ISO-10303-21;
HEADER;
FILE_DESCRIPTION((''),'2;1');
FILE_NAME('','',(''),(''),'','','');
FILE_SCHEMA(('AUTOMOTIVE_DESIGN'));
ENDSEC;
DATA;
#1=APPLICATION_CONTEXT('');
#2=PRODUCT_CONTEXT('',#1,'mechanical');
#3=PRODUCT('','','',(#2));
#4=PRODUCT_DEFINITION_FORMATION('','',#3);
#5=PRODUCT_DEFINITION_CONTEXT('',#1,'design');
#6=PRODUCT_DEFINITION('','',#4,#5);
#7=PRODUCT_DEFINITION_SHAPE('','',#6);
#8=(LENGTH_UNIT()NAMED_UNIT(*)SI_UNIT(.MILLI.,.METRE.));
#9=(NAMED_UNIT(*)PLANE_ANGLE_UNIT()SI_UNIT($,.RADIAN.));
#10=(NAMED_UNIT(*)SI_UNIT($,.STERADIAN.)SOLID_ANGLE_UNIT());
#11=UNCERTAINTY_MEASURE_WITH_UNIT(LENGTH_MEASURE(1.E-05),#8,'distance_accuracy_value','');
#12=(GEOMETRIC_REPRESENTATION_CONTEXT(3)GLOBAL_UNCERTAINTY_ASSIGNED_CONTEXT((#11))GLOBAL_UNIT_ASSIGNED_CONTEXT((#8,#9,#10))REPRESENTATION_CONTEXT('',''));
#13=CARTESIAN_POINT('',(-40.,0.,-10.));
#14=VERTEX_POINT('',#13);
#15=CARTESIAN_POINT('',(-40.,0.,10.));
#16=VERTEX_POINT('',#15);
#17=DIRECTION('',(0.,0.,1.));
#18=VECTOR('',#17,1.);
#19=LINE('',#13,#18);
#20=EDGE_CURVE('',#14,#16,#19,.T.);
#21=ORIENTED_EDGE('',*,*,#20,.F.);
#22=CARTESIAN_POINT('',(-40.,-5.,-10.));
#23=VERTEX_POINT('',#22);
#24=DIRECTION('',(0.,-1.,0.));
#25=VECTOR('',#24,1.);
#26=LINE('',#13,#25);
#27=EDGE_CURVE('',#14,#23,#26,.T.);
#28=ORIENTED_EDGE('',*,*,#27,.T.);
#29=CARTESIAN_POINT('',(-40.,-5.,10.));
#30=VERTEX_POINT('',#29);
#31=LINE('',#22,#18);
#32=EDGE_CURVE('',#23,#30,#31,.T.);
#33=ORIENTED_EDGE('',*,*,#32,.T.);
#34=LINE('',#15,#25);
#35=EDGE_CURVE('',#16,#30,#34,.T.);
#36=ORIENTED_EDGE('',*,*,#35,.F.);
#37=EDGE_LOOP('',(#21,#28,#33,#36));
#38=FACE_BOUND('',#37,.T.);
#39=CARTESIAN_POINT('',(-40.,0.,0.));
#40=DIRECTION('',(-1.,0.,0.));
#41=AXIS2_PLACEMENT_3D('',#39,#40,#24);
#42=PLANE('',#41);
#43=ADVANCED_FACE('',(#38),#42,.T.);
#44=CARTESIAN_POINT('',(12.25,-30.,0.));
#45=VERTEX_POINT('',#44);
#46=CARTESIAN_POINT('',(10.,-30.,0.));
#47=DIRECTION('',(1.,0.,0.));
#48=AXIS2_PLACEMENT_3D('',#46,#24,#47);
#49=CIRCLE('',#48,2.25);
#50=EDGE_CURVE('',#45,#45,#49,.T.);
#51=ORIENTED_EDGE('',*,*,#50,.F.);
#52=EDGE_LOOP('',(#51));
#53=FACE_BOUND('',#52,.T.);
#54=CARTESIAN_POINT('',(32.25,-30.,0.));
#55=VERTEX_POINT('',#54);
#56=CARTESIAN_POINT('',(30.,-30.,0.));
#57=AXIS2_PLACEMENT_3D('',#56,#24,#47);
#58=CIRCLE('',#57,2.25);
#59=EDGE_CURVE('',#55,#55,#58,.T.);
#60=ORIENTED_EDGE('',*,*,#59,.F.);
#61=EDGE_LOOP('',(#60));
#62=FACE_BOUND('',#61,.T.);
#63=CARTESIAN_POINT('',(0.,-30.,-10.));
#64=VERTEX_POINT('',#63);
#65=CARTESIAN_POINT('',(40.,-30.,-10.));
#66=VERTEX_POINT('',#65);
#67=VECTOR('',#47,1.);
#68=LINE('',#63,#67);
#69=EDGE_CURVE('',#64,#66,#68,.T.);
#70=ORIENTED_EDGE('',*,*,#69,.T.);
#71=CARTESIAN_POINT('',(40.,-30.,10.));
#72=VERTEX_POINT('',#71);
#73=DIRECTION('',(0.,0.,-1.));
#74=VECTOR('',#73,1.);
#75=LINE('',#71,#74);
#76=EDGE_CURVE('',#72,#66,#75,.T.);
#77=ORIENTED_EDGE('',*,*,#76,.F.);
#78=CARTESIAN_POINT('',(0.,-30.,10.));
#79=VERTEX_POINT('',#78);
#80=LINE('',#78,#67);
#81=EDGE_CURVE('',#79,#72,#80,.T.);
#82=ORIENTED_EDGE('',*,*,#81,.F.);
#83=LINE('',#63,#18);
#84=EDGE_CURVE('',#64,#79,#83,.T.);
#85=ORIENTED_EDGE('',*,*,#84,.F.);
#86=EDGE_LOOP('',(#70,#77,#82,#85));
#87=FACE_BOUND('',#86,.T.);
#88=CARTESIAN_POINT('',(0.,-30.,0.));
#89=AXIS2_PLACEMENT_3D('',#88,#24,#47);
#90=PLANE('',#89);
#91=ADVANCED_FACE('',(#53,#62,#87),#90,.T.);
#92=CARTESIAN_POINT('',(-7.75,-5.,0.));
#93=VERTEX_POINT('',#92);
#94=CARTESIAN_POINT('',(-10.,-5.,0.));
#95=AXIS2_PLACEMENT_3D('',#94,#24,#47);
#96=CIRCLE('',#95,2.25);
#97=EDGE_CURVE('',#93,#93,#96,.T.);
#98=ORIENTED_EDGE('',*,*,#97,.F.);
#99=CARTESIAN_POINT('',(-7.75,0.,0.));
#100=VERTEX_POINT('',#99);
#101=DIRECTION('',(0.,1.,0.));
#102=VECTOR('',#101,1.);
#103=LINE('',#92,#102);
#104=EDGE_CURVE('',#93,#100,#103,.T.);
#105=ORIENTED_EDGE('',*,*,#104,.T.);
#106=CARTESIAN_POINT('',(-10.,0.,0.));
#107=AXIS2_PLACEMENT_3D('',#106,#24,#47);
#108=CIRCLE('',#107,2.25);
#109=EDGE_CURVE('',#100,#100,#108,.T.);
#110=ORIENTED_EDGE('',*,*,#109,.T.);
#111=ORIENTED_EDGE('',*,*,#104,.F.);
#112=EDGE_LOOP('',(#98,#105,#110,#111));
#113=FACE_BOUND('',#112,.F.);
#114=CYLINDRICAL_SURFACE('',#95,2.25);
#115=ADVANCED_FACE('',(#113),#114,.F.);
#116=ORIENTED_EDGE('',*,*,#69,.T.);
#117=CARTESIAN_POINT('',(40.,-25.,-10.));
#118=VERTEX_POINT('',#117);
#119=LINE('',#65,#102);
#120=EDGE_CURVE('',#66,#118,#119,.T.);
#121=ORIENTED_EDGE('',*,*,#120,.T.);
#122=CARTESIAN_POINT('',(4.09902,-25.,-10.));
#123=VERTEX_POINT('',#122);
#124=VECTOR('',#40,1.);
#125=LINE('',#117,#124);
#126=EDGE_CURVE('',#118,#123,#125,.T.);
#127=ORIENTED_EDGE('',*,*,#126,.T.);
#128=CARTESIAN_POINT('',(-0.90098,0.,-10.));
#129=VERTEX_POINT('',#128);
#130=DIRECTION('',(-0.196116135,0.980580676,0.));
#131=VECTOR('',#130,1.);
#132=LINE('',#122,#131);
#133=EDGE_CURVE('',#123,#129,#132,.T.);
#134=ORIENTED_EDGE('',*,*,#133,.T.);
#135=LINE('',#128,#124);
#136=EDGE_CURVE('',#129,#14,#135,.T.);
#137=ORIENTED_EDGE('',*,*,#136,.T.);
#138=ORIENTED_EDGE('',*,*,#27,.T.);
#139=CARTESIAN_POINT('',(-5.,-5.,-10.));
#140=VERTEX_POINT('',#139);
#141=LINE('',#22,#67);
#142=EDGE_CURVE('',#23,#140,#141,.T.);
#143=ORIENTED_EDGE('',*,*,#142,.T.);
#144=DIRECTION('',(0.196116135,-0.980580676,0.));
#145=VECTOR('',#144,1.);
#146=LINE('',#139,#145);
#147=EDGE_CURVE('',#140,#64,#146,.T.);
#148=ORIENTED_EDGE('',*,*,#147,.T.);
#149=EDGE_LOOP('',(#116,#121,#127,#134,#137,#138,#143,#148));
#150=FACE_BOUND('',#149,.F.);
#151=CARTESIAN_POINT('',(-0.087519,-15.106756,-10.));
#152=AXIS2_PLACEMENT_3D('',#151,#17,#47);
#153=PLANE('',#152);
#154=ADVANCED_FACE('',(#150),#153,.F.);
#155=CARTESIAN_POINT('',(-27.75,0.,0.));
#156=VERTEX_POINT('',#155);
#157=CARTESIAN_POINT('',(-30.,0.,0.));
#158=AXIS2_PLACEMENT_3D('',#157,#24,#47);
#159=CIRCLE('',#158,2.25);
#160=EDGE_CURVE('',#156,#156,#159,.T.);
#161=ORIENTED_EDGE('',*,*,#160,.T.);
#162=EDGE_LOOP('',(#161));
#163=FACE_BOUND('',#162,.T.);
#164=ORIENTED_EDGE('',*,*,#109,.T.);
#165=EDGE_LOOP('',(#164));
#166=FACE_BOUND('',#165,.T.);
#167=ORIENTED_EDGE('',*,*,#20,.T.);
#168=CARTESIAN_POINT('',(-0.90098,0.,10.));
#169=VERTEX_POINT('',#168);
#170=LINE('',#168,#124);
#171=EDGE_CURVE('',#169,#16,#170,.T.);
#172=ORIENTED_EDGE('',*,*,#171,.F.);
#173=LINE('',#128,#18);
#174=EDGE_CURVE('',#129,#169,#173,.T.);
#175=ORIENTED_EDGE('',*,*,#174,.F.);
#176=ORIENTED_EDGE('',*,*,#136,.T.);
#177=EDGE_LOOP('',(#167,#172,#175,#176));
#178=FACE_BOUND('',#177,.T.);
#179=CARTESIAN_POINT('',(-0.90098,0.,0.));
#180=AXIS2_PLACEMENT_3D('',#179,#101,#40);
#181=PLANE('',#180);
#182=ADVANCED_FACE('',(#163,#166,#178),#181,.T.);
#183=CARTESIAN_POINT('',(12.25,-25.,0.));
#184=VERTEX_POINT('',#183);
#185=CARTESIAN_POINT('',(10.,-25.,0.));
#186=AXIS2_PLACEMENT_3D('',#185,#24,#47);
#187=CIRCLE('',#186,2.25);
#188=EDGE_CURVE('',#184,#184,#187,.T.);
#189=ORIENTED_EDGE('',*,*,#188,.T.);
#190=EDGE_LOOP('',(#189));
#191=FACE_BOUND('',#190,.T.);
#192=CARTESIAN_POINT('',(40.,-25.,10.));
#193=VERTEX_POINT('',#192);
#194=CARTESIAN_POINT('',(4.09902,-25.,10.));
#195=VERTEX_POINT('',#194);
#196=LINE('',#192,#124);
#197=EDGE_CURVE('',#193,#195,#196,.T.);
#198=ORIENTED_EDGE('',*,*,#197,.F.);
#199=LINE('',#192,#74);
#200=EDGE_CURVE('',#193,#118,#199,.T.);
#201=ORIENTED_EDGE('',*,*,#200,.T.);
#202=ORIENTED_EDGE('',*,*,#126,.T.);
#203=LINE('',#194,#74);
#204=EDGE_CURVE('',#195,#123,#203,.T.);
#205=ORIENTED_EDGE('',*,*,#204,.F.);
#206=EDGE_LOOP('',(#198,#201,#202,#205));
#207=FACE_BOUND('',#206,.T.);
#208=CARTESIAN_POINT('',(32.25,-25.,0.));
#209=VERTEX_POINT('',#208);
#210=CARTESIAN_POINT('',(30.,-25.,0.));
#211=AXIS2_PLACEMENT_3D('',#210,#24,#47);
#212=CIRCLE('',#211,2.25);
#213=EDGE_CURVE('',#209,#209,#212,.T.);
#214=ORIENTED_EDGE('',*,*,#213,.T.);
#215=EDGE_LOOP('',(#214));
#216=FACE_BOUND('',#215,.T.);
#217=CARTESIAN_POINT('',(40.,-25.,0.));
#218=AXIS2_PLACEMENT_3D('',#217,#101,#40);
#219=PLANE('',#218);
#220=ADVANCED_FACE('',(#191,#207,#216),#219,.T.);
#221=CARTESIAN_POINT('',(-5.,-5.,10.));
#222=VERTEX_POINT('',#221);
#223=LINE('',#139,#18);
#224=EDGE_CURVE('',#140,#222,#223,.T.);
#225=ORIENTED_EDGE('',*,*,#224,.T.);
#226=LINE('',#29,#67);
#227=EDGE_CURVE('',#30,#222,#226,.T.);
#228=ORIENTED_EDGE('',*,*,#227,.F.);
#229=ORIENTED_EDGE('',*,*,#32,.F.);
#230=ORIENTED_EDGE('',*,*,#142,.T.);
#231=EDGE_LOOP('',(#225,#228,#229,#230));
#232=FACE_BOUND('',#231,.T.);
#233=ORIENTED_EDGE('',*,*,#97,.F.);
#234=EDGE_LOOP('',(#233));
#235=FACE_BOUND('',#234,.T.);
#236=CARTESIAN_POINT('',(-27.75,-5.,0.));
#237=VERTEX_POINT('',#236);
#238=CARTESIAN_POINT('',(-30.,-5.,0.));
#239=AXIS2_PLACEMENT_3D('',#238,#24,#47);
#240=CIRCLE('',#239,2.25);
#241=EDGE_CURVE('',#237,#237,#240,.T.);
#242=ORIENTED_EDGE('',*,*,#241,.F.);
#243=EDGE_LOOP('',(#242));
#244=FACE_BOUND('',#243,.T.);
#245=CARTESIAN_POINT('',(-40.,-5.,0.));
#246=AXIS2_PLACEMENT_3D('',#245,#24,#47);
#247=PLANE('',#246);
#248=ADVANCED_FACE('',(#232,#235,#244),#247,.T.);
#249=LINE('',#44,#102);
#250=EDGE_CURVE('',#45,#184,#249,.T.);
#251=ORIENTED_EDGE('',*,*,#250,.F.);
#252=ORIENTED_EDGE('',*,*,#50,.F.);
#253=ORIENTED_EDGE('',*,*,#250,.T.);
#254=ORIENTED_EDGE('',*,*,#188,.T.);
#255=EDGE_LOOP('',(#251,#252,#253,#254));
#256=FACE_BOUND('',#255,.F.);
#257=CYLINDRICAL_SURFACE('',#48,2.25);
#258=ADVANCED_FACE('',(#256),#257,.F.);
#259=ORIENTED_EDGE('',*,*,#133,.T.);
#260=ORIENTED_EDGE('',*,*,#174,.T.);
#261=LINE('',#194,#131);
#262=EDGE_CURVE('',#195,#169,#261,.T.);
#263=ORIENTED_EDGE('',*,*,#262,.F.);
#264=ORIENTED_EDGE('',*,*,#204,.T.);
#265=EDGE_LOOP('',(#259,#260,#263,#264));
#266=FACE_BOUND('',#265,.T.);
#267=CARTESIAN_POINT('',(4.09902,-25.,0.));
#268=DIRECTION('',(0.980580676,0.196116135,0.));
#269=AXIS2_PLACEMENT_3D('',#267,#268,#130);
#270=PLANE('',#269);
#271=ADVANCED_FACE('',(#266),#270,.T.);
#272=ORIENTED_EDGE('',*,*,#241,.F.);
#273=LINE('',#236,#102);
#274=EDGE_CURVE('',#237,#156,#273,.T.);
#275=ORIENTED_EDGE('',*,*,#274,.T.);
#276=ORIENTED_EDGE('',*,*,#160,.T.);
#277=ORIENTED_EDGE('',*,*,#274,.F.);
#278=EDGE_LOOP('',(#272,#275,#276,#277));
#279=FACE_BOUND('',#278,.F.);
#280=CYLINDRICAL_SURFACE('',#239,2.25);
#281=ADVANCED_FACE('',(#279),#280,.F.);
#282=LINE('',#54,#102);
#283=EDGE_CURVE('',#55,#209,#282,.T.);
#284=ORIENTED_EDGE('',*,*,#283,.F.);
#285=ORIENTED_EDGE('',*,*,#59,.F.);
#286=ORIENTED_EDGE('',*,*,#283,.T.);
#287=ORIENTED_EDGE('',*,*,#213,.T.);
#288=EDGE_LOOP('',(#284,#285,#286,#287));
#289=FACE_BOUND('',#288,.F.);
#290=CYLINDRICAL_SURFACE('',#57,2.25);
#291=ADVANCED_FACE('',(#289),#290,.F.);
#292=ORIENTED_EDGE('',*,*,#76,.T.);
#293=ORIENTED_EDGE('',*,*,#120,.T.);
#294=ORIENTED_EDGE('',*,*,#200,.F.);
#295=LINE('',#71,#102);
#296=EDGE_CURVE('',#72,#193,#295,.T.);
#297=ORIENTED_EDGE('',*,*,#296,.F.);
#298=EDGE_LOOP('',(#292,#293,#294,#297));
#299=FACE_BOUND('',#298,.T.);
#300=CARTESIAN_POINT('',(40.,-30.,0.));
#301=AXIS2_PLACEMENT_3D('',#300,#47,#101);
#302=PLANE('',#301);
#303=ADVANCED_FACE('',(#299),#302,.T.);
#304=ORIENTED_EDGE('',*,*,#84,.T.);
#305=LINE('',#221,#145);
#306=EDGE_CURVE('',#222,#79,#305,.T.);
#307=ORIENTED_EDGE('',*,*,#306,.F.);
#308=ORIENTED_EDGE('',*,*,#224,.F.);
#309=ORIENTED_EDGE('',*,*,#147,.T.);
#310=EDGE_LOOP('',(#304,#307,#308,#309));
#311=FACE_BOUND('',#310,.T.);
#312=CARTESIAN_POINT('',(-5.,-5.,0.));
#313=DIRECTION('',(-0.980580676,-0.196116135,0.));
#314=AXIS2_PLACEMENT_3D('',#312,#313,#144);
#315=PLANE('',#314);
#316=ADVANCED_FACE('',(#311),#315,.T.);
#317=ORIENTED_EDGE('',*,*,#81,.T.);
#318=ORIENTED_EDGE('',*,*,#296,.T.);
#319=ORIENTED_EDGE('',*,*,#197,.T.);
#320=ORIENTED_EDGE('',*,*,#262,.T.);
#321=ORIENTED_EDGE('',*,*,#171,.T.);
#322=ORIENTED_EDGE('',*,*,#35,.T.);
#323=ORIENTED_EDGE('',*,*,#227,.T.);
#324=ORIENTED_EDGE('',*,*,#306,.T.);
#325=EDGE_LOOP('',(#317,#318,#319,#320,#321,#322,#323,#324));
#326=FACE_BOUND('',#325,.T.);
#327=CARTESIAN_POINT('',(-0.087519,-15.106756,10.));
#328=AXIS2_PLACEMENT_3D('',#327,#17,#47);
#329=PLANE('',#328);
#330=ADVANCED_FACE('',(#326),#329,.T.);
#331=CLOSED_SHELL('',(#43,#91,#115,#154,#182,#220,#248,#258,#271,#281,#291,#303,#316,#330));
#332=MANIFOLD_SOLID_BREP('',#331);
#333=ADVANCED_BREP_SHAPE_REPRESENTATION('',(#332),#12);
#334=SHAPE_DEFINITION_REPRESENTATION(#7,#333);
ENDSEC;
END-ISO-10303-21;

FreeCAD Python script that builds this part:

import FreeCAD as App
import Part
import Sketcher
from FreeCAD import Vector

doc = App.newDocument("Part")
body = doc.addObject("PartDesign::Body", "Body")

# Sketch on XY plane
sketch1 = body.newObject("Sketcher::SketchObject", "Sketch")
sketch1.AttachmentSupport = (doc.getObject("XY_Plane"), [""])
sketch1.MapMode = "FlatFace"
sketch1.addGeometry(Part.LineSegment(Vector(4.09902, -25, 0), Vector(-0.90098, 0, 0)), False)
sketch1.addGeometry(Part.LineSegment(Vector(-0.90098, 0, 0), Vector(-40, 0, 0)), False)
sketch1.addGeometry(Part.LineSegment(Vector(-40, 0, 0), Vector(-40, -5, 0)), False)
sketch1.addGeometry(Part.LineSegment(Vector(-40, -5, 0), Vector(-5, -5, 0)), False)
sketch1.addGeometry(Part.LineSegment(Vector(-5, -5, 0), Vector(0, -30, 0)), False)
sketch1.addGeometry(Part.LineSegment(Vector(0, -30, 0), Vector(40, -30, 0)), False)
sketch1.addGeometry(Part.LineSegment(Vector(40, -30, 0), Vector(40, -25, 0)), False)
sketch1.addGeometry(Part.LineSegment(Vector(40, -25, 0), Vector(4.09902, -25, 0)), False)
sketch1.addConstraint(Sketcher.Constraint("Coincident", 0, 2, 1, 1))
sketch1.addConstraint(Sketcher.Constraint("Coincident", 1, 2, 2, 1))
sketch1.addConstraint(Sketcher.Constraint("Coincident", 2, 2, 3, 1))
sketch1.addConstraint(Sketcher.Constraint("Coincident", 3, 2, 4, 1))
sketch1.addConstraint(Sketcher.Constraint("Coincident", 4, 2, 5, 1))
sketch1.addConstraint(Sketcher.Constraint("Coincident", 5, 2, 6, 1))
sketch1.addConstraint(Sketcher.Constraint("Coincident", 6, 2, 7, 1))
sketch1.addConstraint(Sketcher.Constraint("Coincident", 7, 2, 0, 1))
sketch1.addConstraint(Sketcher.Constraint("Horizontal", 1))
sketch1.addConstraint(Sketcher.Constraint("Vertical", 2))
sketch1.addConstraint(Sketcher.Constraint("Horizontal", 3))
sketch1.addConstraint(Sketcher.Constraint("Horizontal", 5))
sketch1.addConstraint(Sketcher.Constraint("Vertical", 6))
sketch1.addConstraint(Sketcher.Constraint("Horizontal", 7))
sketch1.addConstraint(Sketcher.Constraint("PointOnObject", 0, 2, -1))
sketch1.addConstraint(Sketcher.Constraint("PointOnObject", 4, 2, -2))
sketch1.addConstraint(Sketcher.Constraint("Parallel", 0, 4))
sketch1.addConstraint(Sketcher.Constraint("Equal", 2, 6))
sketch1.addConstraint(Sketcher.Constraint("DistanceX", 3, 1, 3, 2, 35.0))
sketch1.addConstraint(Sketcher.Constraint("DistanceX", 5, 1, 5, 2, 40.0))
sketch1.addConstraint(Sketcher.Constraint("DistanceY", 2, 2, 2, 1, 5.0))
sketch1.addConstraint(Sketcher.Constraint("DistanceX", 1, 2, -1, 1, 40.0))
sketch1.addConstraint(Sketcher.Constraint("DistanceY", 4, 2, -1, 1, 30.0))
sketch1.addConstraint(Sketcher.Constraint("DistanceX", 1, 2, 1, 1, 39.09902))
pad1 = body.newObject("PartDesign::Pad", "Pad")
pad1.Profile = sketch1
pad1.Length = 20
pad1.Midplane = True

# Sketch on XZ plane
sketch2 = body.newObject("Sketcher::SketchObject", "Sketch001")
sketch2.AttachmentSupport = (doc.getObject("XZ_Plane"), [""])
sketch2.MapMode = "FlatFace"
sketch2.AttachmentOffset = App.Placement(Vector(0, 0, 5), App.Rotation())
sketch2.addGeometry(Part.Circle(Vector(-30, 0, 0), Vector(0, 0, 1), 2.25), False)
sketch2.addGeometry(Part.Circle(Vector(-10, 0, 0), Vector(0, 0, 1), 2.25), False)
sketch2.addConstraint(Sketcher.Constraint("Equal", 0, 1))
sketch2.addConstraint(Sketcher.Constraint("PointOnObject", 0, 3, -1))
sketch2.addConstraint(Sketcher.Constraint("PointOnObject", 1, 3, -1))
sketch2.addConstraint(Sketcher.Constraint("Diameter", 0, 4.5))
sketch2.addConstraint(Sketcher.Constraint("DistanceX", 0, 3, -1, 1, 30.0))
sketch2.addConstraint(Sketcher.Constraint("DistanceX", 1, 3, -1, 1, 10.0))
pocket1 = body.newObject("PartDesign::Pocket", "Pocket")
pocket1.Profile = sketch2
pocket1.Type = "ThroughAll"

# Sketch on XZ plane
sketch3 = body.newObject("Sketcher::SketchObject", "Sketch002")
sketch3.AttachmentSupport = (doc.getObject("XZ_Plane"), [""])
sketch3.MapMode = "FlatFace"
sketch3.AttachmentOffset = App.Placement(Vector(0, 0, 30), App.Rotation())
sketch3.addGeometry(Part.Circle(Vector(10, 0, 0), Vector(0, 0, 1), 2.25), False)
sketch3.addGeometry(Part.Circle(Vector(30, 0, 0), Vector(0, 0, 1), 2.25), False)
sketch3.addConstraint(Sketcher.Constraint("Equal", 0, 1))
sketch3.addConstraint(Sketcher.Constraint("PointOnObject", 0, 3, -1))
sketch3.addConstraint(Sketcher.Constraint("PointOnObject", 1, 3, -1))
sketch3.addConstraint(Sketcher.Constraint("Diameter", 0, 4.5))
sketch3.addConstraint(Sketcher.Constraint("DistanceX", -1, 1, 0, 3, 10.0))
sketch3.addConstraint(Sketcher.Constraint("DistanceX", -1, 1, 1, 3, 30.0))
pocket2 = body.newObject("PartDesign::Pocket", "Pocket001")
pocket2.Profile = sketch3
pocket2.Type = "ThroughAll"

doc.recompute()
